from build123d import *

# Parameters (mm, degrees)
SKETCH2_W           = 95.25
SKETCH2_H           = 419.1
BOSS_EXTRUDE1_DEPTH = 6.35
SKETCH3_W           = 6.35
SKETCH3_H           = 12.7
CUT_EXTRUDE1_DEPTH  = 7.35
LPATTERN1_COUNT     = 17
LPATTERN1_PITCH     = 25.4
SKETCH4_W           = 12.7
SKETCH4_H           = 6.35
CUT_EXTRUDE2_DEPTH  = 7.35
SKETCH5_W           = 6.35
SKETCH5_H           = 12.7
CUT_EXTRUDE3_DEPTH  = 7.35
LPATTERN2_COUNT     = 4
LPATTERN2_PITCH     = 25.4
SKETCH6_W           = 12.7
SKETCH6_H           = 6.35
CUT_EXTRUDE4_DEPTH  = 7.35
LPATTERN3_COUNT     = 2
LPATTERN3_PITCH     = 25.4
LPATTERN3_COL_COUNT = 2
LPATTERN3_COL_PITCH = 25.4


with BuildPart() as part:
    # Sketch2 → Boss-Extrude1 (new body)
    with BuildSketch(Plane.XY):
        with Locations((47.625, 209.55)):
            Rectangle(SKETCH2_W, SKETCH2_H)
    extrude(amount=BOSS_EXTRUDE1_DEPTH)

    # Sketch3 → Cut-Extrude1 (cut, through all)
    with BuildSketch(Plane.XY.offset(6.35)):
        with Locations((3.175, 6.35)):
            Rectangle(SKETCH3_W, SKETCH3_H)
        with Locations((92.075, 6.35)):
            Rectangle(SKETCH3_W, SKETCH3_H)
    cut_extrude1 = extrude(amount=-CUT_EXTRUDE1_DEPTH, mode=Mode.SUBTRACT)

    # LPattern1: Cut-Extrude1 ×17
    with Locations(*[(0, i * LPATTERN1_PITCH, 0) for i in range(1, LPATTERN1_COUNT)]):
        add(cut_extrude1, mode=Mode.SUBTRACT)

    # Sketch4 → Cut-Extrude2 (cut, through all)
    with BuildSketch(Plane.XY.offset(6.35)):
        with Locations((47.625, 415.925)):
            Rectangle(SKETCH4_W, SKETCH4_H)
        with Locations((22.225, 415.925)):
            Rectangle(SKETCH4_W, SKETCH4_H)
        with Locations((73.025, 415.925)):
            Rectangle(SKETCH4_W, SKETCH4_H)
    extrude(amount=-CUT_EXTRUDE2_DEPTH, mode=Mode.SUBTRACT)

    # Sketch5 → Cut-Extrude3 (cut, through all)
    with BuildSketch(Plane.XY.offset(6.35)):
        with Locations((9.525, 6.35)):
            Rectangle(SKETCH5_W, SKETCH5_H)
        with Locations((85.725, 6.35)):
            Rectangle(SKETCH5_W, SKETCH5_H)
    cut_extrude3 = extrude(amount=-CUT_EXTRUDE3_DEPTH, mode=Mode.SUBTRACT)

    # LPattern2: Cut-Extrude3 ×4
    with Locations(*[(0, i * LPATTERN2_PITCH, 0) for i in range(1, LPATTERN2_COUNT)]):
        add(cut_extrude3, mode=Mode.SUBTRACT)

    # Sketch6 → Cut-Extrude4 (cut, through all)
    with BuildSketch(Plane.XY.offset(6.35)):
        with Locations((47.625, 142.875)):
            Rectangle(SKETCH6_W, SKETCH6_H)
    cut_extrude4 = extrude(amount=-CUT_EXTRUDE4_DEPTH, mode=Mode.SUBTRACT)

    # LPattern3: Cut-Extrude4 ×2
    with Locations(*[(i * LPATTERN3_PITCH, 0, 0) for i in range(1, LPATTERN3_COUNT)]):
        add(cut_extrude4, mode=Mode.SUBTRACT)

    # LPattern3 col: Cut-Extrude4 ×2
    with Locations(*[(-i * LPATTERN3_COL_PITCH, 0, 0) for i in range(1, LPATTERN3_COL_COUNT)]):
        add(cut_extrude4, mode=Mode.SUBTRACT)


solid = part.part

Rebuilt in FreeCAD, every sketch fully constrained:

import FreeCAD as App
import Part
import Sketcher
from FreeCAD import Vector
Q = App.Units.Quantity

doc = App.newDocument("Part")
body = doc.addObject("PartDesign::Body", "Body")

# Sketch on XY plane
sketch1 = body.newObject("Sketcher::SketchObject", "Sketch")
sketch1.AttachmentSupport = (doc.getObject("XY_Plane"), [""])
sketch1.MapMode = "FlatFace"
sketch1.addGeometry(Part.LineSegment(Vector(0, 419, 0), Vector(0, 0, 0)), False)
sketch1.addGeometry(Part.LineSegment(Vector(0, 0, 0), Vector(95, 0, 0)), False)
sketch1.addGeometry(Part.LineSegment(Vector(95, 0, 0), Vector(95, 419, 0)), False)
sketch1.addGeometry(Part.LineSegment(Vector(95, 419, 0), Vector(0, 419, 0)), False)
sketch1.addConstraint(Sketcher.Constraint("Coincident", 0, 2, 1, 1))
sketch1.addConstraint(Sketcher.Constraint("Coincident", 1, 2, 2, 1))
sketch1.addConstraint(Sketcher.Constraint("Coincident", 2, 2, 3, 1))
sketch1.addConstraint(Sketcher.Constraint("Coincident", 3, 2, 0, 1))
sketch1.addConstraint(Sketcher.Constraint("Vertical", 0))
sketch1.addConstraint(Sketcher.Constraint("Horizontal", 1))
sketch1.addConstraint(Sketcher.Constraint("Vertical", 2))
sketch1.addConstraint(Sketcher.Constraint("Horizontal", 3))
sketch1.addConstraint(Sketcher.Constraint("Coincident", 0, 2, -1, 1))
sketch1.addConstraint(Sketcher.Constraint("DistanceY", 0, 2, 0, 1, Q("16.5 in")))
sketch1.addConstraint(Sketcher.Constraint("DistanceX", 1, 1, 1, 2, Q("3.75 in")))
pad1 = body.newObject("PartDesign::Pad", "Pad")
pad1.Profile = sketch1
pad1.Length = Q("0.25 in")

# Sketch on XY plane
sketch2 = body.newObject("Sketcher::SketchObject", "Sketch001")
sketch2.AttachmentSupport = (doc.getObject("XY_Plane"), [""])
sketch2.MapMode = "FlatFace"
sketch2.AttachmentOffset = App.Placement(Vector(0, 0, 0.25 * 25.4), App.Rotation())
sketch2.addGeometry(Part.LineSegment(Vector(0, 13, 0), Vector(0, 0, 0)), False)
sketch2.addGeometry(Part.LineSegment(Vector(0, 0, 0), Vector(6, 0, 0)), False)
sketch2.addGeometry(Part.LineSegment(Vector(6, 0, 0), Vector(6, 13, 0)), False)
sketch2.addGeometry(Part.LineSegment(Vector(6, 13, 0), Vector(0, 13, 0)), False)
sketch2.addGeometry(Part.LineSegment(Vector(89, 13, 0), Vector(89, 0, 0)), False)
sketch2.addGeometry(Part.LineSegment(Vector(89, 0, 0), Vector(95, 0, 0)), False)
sketch2.addGeometry(Part.LineSegment(Vector(95, 0, 0), Vector(95, 13, 0)), False)
sketch2.addGeometry(Part.LineSegment(Vector(95, 13, 0), Vector(89, 13, 0)), False)
sketch2.addConstraint(Sketcher.Constraint("Coincident", 0, 2, 1, 1))
sketch2.addConstraint(Sketcher.Constraint("Coincident", 1, 2, 2, 1))
sketch2.addConstraint(Sketcher.Constraint("Coincident", 2, 2, 3, 1))
sketch2.addConstraint(Sketcher.Constraint("Coincident", 3, 2, 0, 1))
sketch2.addConstraint(Sketcher.Constraint("Coincident", 4, 2, 5, 1))
sketch2.addConstraint(Sketcher.Constraint("Coincident", 5, 2, 6, 1))
sketch2.addConstraint(Sketcher.Constraint("Coincident", 6, 2, 7, 1))
sketch2.addConstraint(Sketcher.Constraint("Coincident", 7, 2, 4, 1))
sketch2.addConstraint(Sketcher.Constraint("Vertical", 0))
sketch2.addConstraint(Sketcher.Constraint("Horizontal", 1))
sketch2.addConstraint(Sketcher.Constraint("Vertical", 2))
sketch2.addConstraint(Sketcher.Constraint("Horizontal", 3))
sketch2.addConstraint(Sketcher.Constraint("Vertical", 4))
sketch2.addConstraint(Sketcher.Constraint("Horizontal", 5))
sketch2.addConstraint(Sketcher.Constraint("Vertical", 6))
sketch2.addConstraint(Sketcher.Constraint("Horizontal", 7))
sketch2.addConstraint(Sketcher.Constraint("Coincident", 0, 2, -1, 1))
sketch2.addConstraint(Sketcher.Constraint("PointOnObject", 4, 2, -1))
sketch2.addConstraint(Sketcher.Constraint("Horizontal", 3, 2, 6, 2))
sketch2.addConstraint(Sketcher.Constraint("Equal", 3, 5))
sketch2.addConstraint(Sketcher.Constraint("DistanceY", 0, 2, 0, 1, Q("0.5 in")))
sketch2.addConstraint(Sketcher.Constraint("DistanceX", 1, 1, 1, 2, Q("0.25 in")))
sketch2.addConstraint(Sketcher.Constraint("DistanceX", -1, 1, 4, 2, Q("3.5 in")))
pocket1 = body.newObject("PartDesign::Pocket", "Pocket")
pocket1.Profile = sketch2
pocket1.Type = "ThroughAll"
doc.recompute()

linearpattern = body.newObject("PartDesign::LinearPattern", "LinearPattern")
linearpattern.Originals = [pocket1]
linearpattern.Direction = (doc.getObject("Y_Axis"), [""])
linearpattern.Mode = "offset"
linearpattern.Offset = Q("1 in")
linearpattern.Occurrences = 17
body.Tip = linearpattern

# Sketch on XY plane
sketch3 = body.newObject("Sketcher::SketchObject", "Sketch002")
sketch3.AttachmentSupport = (doc.getObject("XY_Plane"), [""])
sketch3.MapMode = "FlatFace"
sketch3.AttachmentOffset = App.Placement(Vector(0, 0, 0.25 * 25.4), App.Rotation())
sketch3.addGeometry(Part.LineSegment(Vector(41, 419, 0), Vector(41, 413, 0)), False)
sketch3.addGeometry(Part.LineSegment(Vector(41, 413, 0), Vector(54, 413, 0)), False)
sketch3.addGeometry(Part.LineSegment(Vector(54, 413, 0), Vector(54, 419, 0)), False)
sketch3.addGeometry(Part.LineSegment(Vector(54, 419, 0), Vector(41, 419, 0)), False)
sketch3.addGeometry(Part.LineSegment(Vector(16, 419, 0), Vector(16, 413, 0)), False)
sketch3.addGeometry(Part.LineSegment(Vector(16, 413, 0), Vector(29, 413, 0)), False)
sketch3.addGeometry(Part.LineSegment(Vector(29, 413, 0), Vector(29, 419, 0)), False)
sketch3.addGeometry(Part.LineSegment(Vector(29, 419, 0), Vector(16, 419, 0)), False)
sketch3.addGeometry(Part.LineSegment(Vector(67, 419, 0), Vector(67, 413, 0)), False)
sketch3.addGeometry(Part.LineSegment(Vector(67, 413, 0), Vector(79, 413, 0)), False)
sketch3.addGeometry(Part.LineSegment(Vector(79, 413, 0), Vector(79, 419, 0)), False)
sketch3.addGeometry(Part.LineSegment(Vector(79, 419, 0), Vector(67, 419, 0)), False)
sketch3.addConstraint(Sketcher.Constraint("Coincident", 0, 2, 1, 1))
sketch3.addConstraint(Sketcher.Constraint("Coincident", 1, 2, 2, 1))
sketch3.addConstraint(Sketcher.Constraint("Coincident", 2, 2, 3, 1))
sketch3.addConstraint(Sketcher.Constraint("Coincident", 3, 2, 0, 1))
sketch3.addConstraint(Sketcher.Constraint("Coincident", 4, 2, 5, 1))
sketch3.addConstraint(Sketcher.Constraint("Coincident", 5, 2, 6, 1))
sketch3.addConstraint(Sketcher.Constraint("Coincident", 6, 2, 7, 1))
sketch3.addConstraint(Sketcher.Constraint("Coincident", 7, 2, 4, 1))
sketch3.addConstraint(Sketcher.Constraint("Coincident", 8, 2, 9, 1))
sketch3.addConstraint(Sketcher.Constraint("Coincident", 9, 2, 10, 1))
sketch3.addConstraint(Sketcher.Constraint("Coincident", 10, 2, 11, 1))
sketch3.addConstraint(Sketcher.Constraint("Coincident", 11, 2, 8, 1))
sketch3.addConstraint(Sketcher.Constraint("Vertical", 0))
sketch3.addConstraint(Sketcher.Constraint("Horizontal", 1))
sketch3.addConstraint(Sketcher.Constraint("Vertical", 2))
sketch3.addConstraint(Sketcher.Constraint("Horizontal", 3))
sketch3.addConstraint(Sketcher.Constraint("Vertical", 4))
sketch3.addConstraint(Sketcher.Constraint("Horizontal", 5))
sketch3.addConstraint(Sketcher.Constraint("Vertical", 6))
sketch3.addConstraint(Sketcher.Constraint("Horizontal", 7))
sketch3.addConstraint(Sketcher.Constraint("Vertical", 8))
sketch3.addConstraint(Sketcher.Constraint("Horizontal", 9))
sketch3.addConstraint(Sketcher.Constraint("Vertical", 10))
sketch3.addConstraint(Sketcher.Constraint("Horizontal", 11))
sketch3.addConstraint(Sketcher.Constraint("Horizontal", 1, 2, 4, 2))
sketch3.addConstraint(Sketcher.Constraint("Horizontal", 3, 2, 6, 2))
sketch3.addConstraint(Sketcher.Constraint("Horizontal", 5, 2, 8, 2))
sketch3.addConstraint(Sketcher.Constraint("Horizontal", 7, 2, 10, 2))
sketch3.addConstraint(Sketcher.Constraint("Equal", 3, 5))
sketch3.addConstraint(Sketcher.Constraint("Equal", 7, 9))
sketch3.addConstraint(Sketcher.Constraint("DistanceX", 1, 1, 1, 2, Q("0.5 in")))
sketch3.addConstraint(Sketcher.Constraint("DistanceX", 4, 2, 0, 2, Q("1 in")))
sketch3.addConstraint(Sketcher.Constraint("DistanceX", 0, 2, 8, 2, Q("1 in")))
sketch3.addConstraint(Sketcher.Constraint("DistanceY", 0, 2, 0, 1, Q("0.25 in")))
sketch3.addConstraint(Sketcher.Constraint("DistanceY", -1, 1, 2, 2, Q("16.5 in")))
sketch3.addConstraint(Sketcher.Constraint("DistanceX", -1, 1, 0, 2, Q("1.625 in")))
pocket2 = body.newObject("PartDesign::Pocket", "Pocket001")
pocket2.Profile = sketch3
pocket2.Type = "ThroughAll"

# Sketch on XY plane
sketch4 = body.newObject("Sketcher::SketchObject", "Sketch003")
sketch4.AttachmentSupport = (doc.getObject("XY_Plane"), [""])
sketch4.MapMode = "FlatFace"
sketch4.AttachmentOffset = App.Placement(Vector(0, 0, 0.25 * 25.4), App.Rotation())
sketch4.addGeometry(Part.LineSegment(Vector(6, 13, 0), Vector(6, 0, 0)), False)
sketch4.addGeometry(Part.LineSegment(Vector(6, 0, 0), Vector(13, 0, 0)), False)
sketch4.addGeometry(Part.LineSegment(Vector(13, 0, 0), Vector(13, 13, 0)), False)
sketch4.addGeometry(Part.LineSegment(Vector(13, 13, 0), Vector(6, 13, 0)), False)
sketch4.addGeometry(Part.LineSegment(Vector(83, 13, 0), Vector(83, 0, 0)), False)
sketch4.addGeometry(Part.LineSegment(Vector(83, 0, 0), Vector(89, 0, 0)), False)
sketch4.addGeometry(Part.LineSegment(Vector(89, 0, 0), Vector(89, 13, 0)), False)
sketch4.addGeometry(Part.LineSegment(Vector(89, 13, 0), Vector(83, 13, 0)), False)
sketch4.addConstraint(Sketcher.Constraint("Coincident", 0, 2, 1, 1))
sketch4.addConstraint(Sketcher.Constraint("Coincident", 1, 2, 2, 1))
sketch4.addConstraint(Sketcher.Constraint("Coincident", 2, 2, 3, 1))
sketch4.addConstraint(Sketcher.Constraint("Coincident", 3, 2, 0, 1))
sketch4.addConstraint(Sketcher.Constraint("Coincident", 4, 2, 5, 1))
sketch4.addConstraint(Sketcher.Constraint("Coincident", 5, 2, 6, 1))
sketch4.addConstraint(Sketcher.Constraint("Coincident", 6, 2, 7, 1))
sketch4.addConstraint(Sketcher.Constraint("Coincident", 7, 2, 4, 1))
sketch4.addConstraint(Sketcher.Constraint("Vertical", 0))
sketch4.addConstraint(Sketcher.Constraint("Horizontal", 1))
sketch4.addConstraint(Sketcher.Constraint("Vertical", 2))
sketch4.addConstraint(Sketcher.Constraint("Horizontal", 3))
sketch4.addConstraint(Sketcher.Constraint("Vertical", 4))
sketch4.addConstraint(Sketcher.Constraint("Horizontal", 5))
sketch4.addConstraint(Sketcher.Constraint("Vertical", 6))
sketch4.addConstraint(Sketcher.Constraint("Horizontal", 7))
sketch4.addConstraint(Sketcher.Constraint("PointOnObject", 0, 2, -1))
sketch4.addConstraint(Sketcher.Constraint("PointOnObject", 4, 2, -1))
sketch4.addConstraint(Sketcher.Constraint("Horizontal", 3, 2, 6, 2))
sketch4.addConstraint(Sketcher.Constraint("Equal", 3, 5))
sketch4.addConstraint(Sketcher.Constraint("DistanceY", 0, 2, 0, 1, Q("0.5 in")))
sketch4.addConstraint(Sketcher.Constraint("DistanceX", 0, 2, 4, 2, Q("3 in")))
sketch4.addConstraint(Sketcher.Constraint("DistanceX", 1, 1, 1, 2, Q("0.25 in")))
sketch4.addConstraint(Sketcher.Constraint("DistanceX", -1, 1, 1, 2, Q("0.5 in")))
pocket3 = body.newObject("PartDesign::Pocket", "Pocket002")
pocket3.Profile = sketch4
pocket3.Type = "ThroughAll"
doc.recompute()

linearpattern2 = body.newObject("PartDesign::LinearPattern", "LinearPattern001")
linearpattern2.Originals = [pocket3]
linearpattern2.Direction = (doc.getObject("Y_Axis"), [""])
linearpattern2.Mode = "offset"
linearpattern2.Offset = Q("1 in")
linearpattern2.Occurrences = 4
body.Tip = linearpattern2

# Sketch on XY plane
sketch5 = body.newObject("Sketcher::SketchObject", "Sketch004")
sketch5.AttachmentSupport = (doc.getObject("XY_Plane"), [""])
sketch5.MapMode = "FlatFace"
sketch5.AttachmentOffset = App.Placement(Vector(0, 0, 0.25 * 25.4), App.Rotation())
sketch5.addGeometry(Part.LineSegment(Vector(41, 146, 0), Vector(41, 140, 0)), False)
sketch5.addGeometry(Part.LineSegment(Vector(41, 140, 0), Vector(54, 140, 0)), False)
sketch5.addGeometry(Part.LineSegment(Vector(54, 140, 0), Vector(54, 146, 0)), False)
sketch5.addGeometry(Part.LineSegment(Vector(54, 146, 0), Vector(41, 146, 0)), False)
sketch5.addConstraint(Sketcher.Constraint("Coincident", 0, 2, 1, 1))
sketch5.addConstraint(Sketcher.Constraint("Coincident", 1, 2, 2, 1))
sketch5.addConstraint(Sketcher.Constraint("Coincident", 2, 2, 3, 1))
sketch5.addConstraint(Sketcher.Constraint("Coincident", 3, 2, 0, 1))
sketch5.addConstraint(Sketcher.Constraint("Vertical", 0))
sketch5.addConstraint(Sketcher.Constraint("Horizontal", 1))
sketch5.addConstraint(Sketcher.Constraint("Vertical", 2))
sketch5.addConstraint(Sketcher.Constraint("Horizontal", 3))
sketch5.addConstraint(Sketcher.Constraint("DistanceX", 1, 1, 1, 2, Q("0.5 in")))
sketch5.addConstraint(Sketcher.Constraint("DistanceY", 0, 2, 0, 1, Q("0.25 in")))
sketch5.addConstraint(Sketcher.Constraint("DistanceY", -1, 1, 0, 2, Q("5.5 in")))
sketch5.addConstraint(Sketcher.Constraint("DistanceX", -1, 1, 0, 2, Q("1.625 in")))
pocket4 = body.newObject("PartDesign::Pocket", "Pocket003")
pocket4.Profile = sketch5
pocket4.Type = "ThroughAll"
doc.recompute()

linearpattern3 = body.newObject("PartDesign::LinearPattern", "LinearPattern002")
linearpattern3.Originals = [pocket4]
linearpattern3.Direction = (doc.getObject("X_Axis"), [""])
linearpattern3.Mode = "offset"
linearpattern3.Offset = Q("1 in")
linearpattern3.Occurrences = 2
body.Tip = linearpattern3
doc.recompute()

linearpattern4 = body.newObject("PartDesign::LinearPattern", "LinearPattern003")
linearpattern4.Originals = [pocket4]
linearpattern4.Direction = (doc.getObject("X_Axis"), [""])
linearpattern4.Mode = "offset"
linearpattern4.Offset = Q("1 in")
linearpattern4.Occurrences = 2
linearpattern4.Reversed = True
body.Tip = linearpattern4

doc.recompute()
